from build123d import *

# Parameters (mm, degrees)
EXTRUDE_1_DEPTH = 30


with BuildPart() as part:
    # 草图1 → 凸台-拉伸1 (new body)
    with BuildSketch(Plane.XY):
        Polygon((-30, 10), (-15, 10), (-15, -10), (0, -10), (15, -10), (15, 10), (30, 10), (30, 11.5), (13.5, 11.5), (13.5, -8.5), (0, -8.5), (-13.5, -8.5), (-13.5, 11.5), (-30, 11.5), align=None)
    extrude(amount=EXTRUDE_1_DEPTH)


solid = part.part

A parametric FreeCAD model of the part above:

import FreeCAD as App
import Part
import Sketcher

V = App.Vector

doc = App.newDocument("Part")
body = doc.addObject("PartDesign::Body", "Body")

sketch1 = body.newObject("Sketcher::SketchObject", "Sketch")
sketch1.AttachmentSupport = (doc.getObject("XY_Plane"), [""])
sketch1.MapMode = "FlatFace"
sketch1.addGeometry([
    Part.LineSegment(V(-30, 10, 0), V(-15, 10, 0)),
    Part.LineSegment(V(-15, 10, 0), V(-15, -10, 0)),
    Part.LineSegment(V(-15, -10, 0), V(15, -10, 0)),
    Part.LineSegment(V(15, -10, 0), V(15, 10, 0)),
    Part.LineSegment(V(15, 10, 0), V(30, 10, 0)),
    Part.LineSegment(V(30, 10, 0), V(30, 11.5, 0)),
    Part.LineSegment(V(30, 11.5, 0), V(13.5, 11.5, 0)),
    Part.LineSegment(V(13.5, 11.5, 0), V(13.5, -8.5, 0)),
    Part.LineSegment(V(13.5, -8.5, 0), V(-13.5, -8.5, 0)),
    Part.LineSegment(V(-13.5, -8.5, 0), V(-13.5, 11.5, 0)),
    Part.LineSegment(V(-13.5, 11.5, 0), V(-30, 11.5, 0)),
    Part.LineSegment(V(-30, 11.5, 0), V(-30, 10, 0)),
], False)
sketch1.addConstraint([
    Sketcher.Constraint("Coincident", 0, 2, 1, 1),
    Sketcher.Constraint("Coincident", 1, 2, 2, 1),
    Sketcher.Constraint("Coincident", 2, 2, 3, 1),
    Sketcher.Constraint("Coincident", 3, 2, 4, 1),
    Sketcher.Constraint("Coincident", 4, 2, 5, 1),
    Sketcher.Constraint("Coincident", 5, 2, 6, 1),
    Sketcher.Constraint("Coincident", 6, 2, 7, 1),
    Sketcher.Constraint("Coincident", 7, 2, 8, 1),
    Sketcher.Constraint("Coincident", 8, 2, 9, 1),
    Sketcher.Constraint("Coincident", 9, 2, 10, 1),
    Sketcher.Constraint("Coincident", 10, 2, 11, 1),
    Sketcher.Constraint("Coincident", 11, 2, 0, 1),
    Sketcher.Constraint("Horizontal", 0),
    Sketcher.Constraint("Vertical", 1),
    Sketcher.Constraint("Horizontal", 2),
    Sketcher.Constraint("Vertical", 3),
    Sketcher.Constraint("Horizontal", 4),
    Sketcher.Constraint("Vertical", 5),
    Sketcher.Constraint("Horizontal", 6),
    Sketcher.Constraint("Vertical", 7),
    Sketcher.Constraint("Horizontal", 8),
    Sketcher.Constraint("Vertical", 9),
    Sketcher.Constraint("Horizontal", 10),
    Sketcher.Constraint("Vertical", 11),
    Sketcher.Constraint("Symmetric", 0, 2, 2, 2, -1, 1),
    Sketcher.Constraint("Symmetric", 6, 2, 9, 2, -2),
    Sketcher.Constraint("Symmetric", 4, 2, 11, 2, -2),
    Sketcher.Constraint("Equal", 3, 7),
    Sketcher.Constraint("DistanceX", 0, 1, 0, 2, 15.0),
    Sketcher.Constraint("DistanceX", 2, 1, 2, 2, 30.0),
    Sketcher.Constraint("DistanceX", 8, 2, 8, 1, 27.0),
    Sketcher.Constraint("DistanceY", 1, 2, 1, 1, 20.0),
    Sketcher.Constraint("DistanceY", 5, 1, 5, 2, 1.5),
])
pad1 = body.newObject("PartDesign::Pad", "Pad")
pad1.Profile = sketch1
pad1.Length = 30

doc.recompute()
